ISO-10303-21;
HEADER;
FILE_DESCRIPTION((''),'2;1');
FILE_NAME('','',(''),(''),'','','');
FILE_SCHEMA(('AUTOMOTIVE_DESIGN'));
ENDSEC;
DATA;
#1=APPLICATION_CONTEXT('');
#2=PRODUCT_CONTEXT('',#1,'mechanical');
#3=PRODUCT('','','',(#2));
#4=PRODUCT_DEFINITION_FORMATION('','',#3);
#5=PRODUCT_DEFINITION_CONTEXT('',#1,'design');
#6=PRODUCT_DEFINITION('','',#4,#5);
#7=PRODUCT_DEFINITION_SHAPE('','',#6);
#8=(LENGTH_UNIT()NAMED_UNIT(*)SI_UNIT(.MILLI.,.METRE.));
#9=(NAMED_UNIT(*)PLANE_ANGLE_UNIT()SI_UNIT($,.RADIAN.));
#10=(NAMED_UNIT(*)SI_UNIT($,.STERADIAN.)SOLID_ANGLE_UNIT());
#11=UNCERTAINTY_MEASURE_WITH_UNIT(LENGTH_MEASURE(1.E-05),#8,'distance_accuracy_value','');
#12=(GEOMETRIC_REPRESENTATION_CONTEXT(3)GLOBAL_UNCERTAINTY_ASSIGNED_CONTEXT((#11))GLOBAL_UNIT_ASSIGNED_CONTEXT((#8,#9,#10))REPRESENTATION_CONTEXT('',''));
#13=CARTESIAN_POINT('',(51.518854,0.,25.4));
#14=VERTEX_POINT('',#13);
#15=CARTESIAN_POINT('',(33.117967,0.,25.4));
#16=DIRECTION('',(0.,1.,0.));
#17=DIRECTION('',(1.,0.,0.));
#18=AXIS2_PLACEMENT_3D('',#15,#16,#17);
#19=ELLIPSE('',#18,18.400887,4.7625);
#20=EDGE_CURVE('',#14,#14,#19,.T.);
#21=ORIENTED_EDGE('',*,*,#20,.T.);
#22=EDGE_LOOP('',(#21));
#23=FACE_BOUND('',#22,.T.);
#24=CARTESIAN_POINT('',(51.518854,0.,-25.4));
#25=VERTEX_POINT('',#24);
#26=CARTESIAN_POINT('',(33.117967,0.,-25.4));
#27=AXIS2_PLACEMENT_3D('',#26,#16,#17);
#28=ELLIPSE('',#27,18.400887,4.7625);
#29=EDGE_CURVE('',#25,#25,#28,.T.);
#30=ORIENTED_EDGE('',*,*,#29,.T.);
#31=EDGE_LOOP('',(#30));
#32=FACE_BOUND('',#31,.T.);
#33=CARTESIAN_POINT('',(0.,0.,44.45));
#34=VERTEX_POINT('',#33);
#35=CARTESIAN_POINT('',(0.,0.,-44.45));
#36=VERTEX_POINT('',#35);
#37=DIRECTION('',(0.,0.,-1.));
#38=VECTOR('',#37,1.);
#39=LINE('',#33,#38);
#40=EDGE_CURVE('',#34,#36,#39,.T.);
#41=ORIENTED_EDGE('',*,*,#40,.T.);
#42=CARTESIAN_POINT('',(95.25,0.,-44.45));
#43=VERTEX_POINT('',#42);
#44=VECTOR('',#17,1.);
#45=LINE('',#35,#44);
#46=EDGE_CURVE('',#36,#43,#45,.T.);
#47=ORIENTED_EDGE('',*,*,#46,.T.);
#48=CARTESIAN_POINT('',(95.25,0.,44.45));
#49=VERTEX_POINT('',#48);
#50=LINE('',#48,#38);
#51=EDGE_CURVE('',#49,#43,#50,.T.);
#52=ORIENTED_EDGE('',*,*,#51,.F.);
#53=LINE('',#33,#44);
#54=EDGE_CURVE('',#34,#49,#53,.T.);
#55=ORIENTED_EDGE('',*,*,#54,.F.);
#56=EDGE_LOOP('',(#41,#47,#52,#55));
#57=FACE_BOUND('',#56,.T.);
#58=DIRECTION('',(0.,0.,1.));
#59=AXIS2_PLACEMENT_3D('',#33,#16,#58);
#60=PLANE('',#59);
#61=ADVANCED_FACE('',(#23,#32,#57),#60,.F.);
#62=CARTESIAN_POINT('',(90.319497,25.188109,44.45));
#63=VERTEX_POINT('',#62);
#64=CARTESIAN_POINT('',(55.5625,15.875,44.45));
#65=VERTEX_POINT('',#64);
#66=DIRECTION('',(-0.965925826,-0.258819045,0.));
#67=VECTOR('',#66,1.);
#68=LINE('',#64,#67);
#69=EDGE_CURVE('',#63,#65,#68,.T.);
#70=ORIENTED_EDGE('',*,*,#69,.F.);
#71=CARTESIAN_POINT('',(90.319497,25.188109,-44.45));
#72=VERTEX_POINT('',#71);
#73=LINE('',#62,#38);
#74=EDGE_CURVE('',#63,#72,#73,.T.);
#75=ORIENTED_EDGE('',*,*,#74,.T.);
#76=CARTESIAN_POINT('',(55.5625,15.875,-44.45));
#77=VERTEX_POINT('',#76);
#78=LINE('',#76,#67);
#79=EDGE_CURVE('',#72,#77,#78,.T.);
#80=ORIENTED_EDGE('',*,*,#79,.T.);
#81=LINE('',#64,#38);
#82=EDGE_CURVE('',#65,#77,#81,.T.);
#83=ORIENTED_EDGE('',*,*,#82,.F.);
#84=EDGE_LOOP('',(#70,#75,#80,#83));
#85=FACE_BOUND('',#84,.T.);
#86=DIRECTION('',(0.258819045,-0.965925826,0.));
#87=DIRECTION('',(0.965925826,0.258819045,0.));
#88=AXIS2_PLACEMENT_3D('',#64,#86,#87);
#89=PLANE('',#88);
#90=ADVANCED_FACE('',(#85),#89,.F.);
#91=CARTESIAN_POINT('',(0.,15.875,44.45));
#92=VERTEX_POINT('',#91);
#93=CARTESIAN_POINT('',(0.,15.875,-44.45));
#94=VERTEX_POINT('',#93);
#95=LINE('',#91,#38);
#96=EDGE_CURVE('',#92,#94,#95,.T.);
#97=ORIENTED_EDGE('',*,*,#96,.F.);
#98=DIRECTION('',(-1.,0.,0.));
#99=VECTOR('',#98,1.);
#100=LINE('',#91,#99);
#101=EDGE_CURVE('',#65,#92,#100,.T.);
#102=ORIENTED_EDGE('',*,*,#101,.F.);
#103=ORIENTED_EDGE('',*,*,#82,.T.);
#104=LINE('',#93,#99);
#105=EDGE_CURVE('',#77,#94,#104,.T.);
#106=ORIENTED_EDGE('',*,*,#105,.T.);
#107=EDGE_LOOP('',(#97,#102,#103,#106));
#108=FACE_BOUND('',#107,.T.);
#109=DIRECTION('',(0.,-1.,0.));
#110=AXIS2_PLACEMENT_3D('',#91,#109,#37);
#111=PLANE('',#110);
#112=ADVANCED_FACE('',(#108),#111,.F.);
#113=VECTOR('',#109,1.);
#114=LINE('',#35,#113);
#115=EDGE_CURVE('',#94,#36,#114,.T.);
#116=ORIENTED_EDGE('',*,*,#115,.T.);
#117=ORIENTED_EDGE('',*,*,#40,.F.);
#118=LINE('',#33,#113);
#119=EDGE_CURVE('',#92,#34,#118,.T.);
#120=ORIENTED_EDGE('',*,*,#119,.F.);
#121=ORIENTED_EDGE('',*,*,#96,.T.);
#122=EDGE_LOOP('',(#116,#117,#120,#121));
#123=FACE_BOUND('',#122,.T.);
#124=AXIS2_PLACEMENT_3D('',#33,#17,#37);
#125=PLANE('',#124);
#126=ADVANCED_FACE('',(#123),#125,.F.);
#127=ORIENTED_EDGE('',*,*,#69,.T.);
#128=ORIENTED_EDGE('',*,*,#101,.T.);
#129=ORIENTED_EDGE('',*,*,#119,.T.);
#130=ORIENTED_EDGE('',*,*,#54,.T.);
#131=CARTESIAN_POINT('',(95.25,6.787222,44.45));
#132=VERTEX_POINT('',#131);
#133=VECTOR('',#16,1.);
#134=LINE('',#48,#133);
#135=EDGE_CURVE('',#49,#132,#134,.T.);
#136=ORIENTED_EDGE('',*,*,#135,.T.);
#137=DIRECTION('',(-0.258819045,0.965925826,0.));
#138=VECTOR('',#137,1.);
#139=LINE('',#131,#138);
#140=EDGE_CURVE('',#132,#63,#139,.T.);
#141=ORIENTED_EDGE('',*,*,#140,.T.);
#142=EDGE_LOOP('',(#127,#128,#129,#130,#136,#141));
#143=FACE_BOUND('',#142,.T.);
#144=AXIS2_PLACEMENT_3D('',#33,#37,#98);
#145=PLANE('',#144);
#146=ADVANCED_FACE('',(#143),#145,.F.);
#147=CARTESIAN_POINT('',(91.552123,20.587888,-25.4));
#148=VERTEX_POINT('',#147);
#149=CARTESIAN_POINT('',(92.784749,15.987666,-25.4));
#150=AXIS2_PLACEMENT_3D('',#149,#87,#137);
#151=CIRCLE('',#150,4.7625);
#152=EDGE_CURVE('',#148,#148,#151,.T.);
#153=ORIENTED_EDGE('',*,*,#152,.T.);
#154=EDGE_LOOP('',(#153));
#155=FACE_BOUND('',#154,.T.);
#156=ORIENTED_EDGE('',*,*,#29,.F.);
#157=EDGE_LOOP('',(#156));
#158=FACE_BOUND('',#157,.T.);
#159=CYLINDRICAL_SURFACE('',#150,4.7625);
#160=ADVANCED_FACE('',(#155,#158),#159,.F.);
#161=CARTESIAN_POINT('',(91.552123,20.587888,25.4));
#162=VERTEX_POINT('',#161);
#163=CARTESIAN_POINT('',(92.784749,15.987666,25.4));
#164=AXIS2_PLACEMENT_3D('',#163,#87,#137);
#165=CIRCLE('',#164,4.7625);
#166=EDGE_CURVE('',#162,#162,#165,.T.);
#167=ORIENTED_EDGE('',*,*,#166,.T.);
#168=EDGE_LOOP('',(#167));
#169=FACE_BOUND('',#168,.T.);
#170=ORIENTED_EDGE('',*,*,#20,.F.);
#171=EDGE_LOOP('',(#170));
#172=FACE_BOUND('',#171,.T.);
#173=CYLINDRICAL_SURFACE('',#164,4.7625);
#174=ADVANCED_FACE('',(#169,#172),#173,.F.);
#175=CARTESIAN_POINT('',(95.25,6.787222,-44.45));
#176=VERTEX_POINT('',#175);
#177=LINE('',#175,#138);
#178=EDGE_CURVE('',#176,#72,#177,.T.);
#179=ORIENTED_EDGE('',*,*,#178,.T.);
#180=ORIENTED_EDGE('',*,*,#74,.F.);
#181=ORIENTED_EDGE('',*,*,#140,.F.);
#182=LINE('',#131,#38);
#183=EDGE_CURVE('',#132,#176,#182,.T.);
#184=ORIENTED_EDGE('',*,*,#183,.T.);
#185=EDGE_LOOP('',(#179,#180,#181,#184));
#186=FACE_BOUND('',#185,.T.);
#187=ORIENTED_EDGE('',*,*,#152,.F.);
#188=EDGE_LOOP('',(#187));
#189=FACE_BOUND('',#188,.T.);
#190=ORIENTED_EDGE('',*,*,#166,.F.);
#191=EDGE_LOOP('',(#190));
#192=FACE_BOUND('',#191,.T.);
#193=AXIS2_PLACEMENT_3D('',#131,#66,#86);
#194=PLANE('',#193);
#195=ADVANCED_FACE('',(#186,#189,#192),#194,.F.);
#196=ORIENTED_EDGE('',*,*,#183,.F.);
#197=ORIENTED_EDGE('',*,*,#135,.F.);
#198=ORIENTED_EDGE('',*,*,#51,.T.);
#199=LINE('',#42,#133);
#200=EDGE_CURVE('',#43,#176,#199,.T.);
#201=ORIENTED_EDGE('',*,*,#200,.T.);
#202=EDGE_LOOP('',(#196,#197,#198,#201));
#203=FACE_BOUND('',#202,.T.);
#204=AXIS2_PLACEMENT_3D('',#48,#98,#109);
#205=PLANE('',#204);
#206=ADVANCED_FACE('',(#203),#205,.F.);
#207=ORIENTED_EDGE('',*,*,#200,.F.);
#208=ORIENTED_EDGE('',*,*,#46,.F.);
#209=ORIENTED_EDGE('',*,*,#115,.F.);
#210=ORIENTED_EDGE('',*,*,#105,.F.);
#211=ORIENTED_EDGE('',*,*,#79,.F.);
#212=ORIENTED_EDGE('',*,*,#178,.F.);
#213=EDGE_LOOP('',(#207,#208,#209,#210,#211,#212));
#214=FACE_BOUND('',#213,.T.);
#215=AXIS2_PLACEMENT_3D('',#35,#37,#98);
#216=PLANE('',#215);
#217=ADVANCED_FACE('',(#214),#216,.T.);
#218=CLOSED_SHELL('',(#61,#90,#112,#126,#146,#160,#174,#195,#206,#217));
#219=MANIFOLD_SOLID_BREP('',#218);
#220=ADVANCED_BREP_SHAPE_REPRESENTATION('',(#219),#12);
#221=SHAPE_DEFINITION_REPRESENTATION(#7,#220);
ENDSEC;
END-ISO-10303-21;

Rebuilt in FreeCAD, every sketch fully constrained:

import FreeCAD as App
import Part
import Sketcher
Q = App.Units.Quantity

doc = App.newDocument("Part")
body = doc.addObject("PartDesign::Body", "Body")

# Sketch on XY plane
sketch1 = body.newObject("Sketcher::SketchObject", "Sketch")
sketch1.AttachmentSupport = (doc.getObject("XY_Plane"), [""])
sketch1.MapMode = "FlatFace"
sketch1.addGeometry([
    Part.LineSegment(App.Vector(95, 0, 0), App.Vector(95, 7, 0)),  # 0
    Part.LineSegment(App.Vector(95, 7, 0), App.Vector(90, 25, 0)),  # 1
    Part.LineSegment(App.Vector(90, 25, 0), App.Vector(56, 16, 0)),  # 2
    Part.LineSegment(App.Vector(56, 16, 0), App.Vector(0, 16, 0)),  # 3
    Part.LineSegment(App.Vector(0, 16, 0), App.Vector(0, 0, 0)),  # 4
    Part.LineSegment(App.Vector(0, 0, 0), App.Vector(95, 0, 0)),  # 5
], False)
sketch1.addConstraint([
    Sketcher.Constraint("Coincident", 0, 2, 1, 1),
    Sketcher.Constraint("Coincident", 1, 2, 2, 1),
    Sketcher.Constraint("Coincident", 2, 2, 3, 1),
    Sketcher.Constraint("Coincident", 3, 2, 4, 1),
    Sketcher.Constraint("Coincident", 4, 2, 5, 1),
    Sketcher.Constraint("Coincident", 5, 2, 0, 1),
    Sketcher.Constraint("Vertical", 0),
    Sketcher.Constraint("Horizontal", 3),
    Sketcher.Constraint("Vertical", 4),
    Sketcher.Constraint("Horizontal", 5),
    Sketcher.Constraint("Coincident", 4, 2, -1, 1),
    Sketcher.Constraint("Perpendicular", 1, 2),
    Sketcher.Constraint("Angle", 1, Q("105 deg")),
    Sketcher.Constraint("DistanceX", 5, 1, 5, 2, Q("3.75 in")),
    Sketcher.Constraint("Distance", 1, Q("0.75 in")),
    Sketcher.Constraint("DistanceX", 3, 2, 3, 1, Q("2.1875 in")),
    Sketcher.Constraint("DistanceY", 4, 2, 4, 1, Q("0.625 in")),
])
pad1 = body.newObject("PartDesign::Pad", "Pad")
pad1.Profile = sketch1
pad1.Length = Q("3.5 in")
pad1.Midplane = True

# Sketch on an angled plane
sketch2 = body.newObject("Sketcher::SketchObject", "Sketch001")
sketch2.Placement = App.Placement(App.Vector(90.566265, 24.267158, 0), App.Rotation(App.Vector(0, 0, -1), App.Vector(-0.258819045, 0.965925826, 0), App.Vector(0.965925826, 0.258819045, 0), "ZXY"))
sketch2.addGeometry([
    Part.Circle(App.Vector(-25.4, -8.6, 0), App.Vector(0, 0, 1), 4.8),
    Part.Circle(App.Vector(25.4, -8.6, 0), App.Vector(0, 0, 1), 4.8),
], False)
sketch2.addConstraint([
    Sketcher.Constraint("Equal", 0, 1),
    Sketcher.Constraint("Symmetric", 0, 3, 1, 3, -2),
    Sketcher.Constraint("Diameter", 0, Q("0.375 in")),
    Sketcher.Constraint("DistanceX", 0, 3, -1, 1, Q("1 in")),
    Sketcher.Constraint("DistanceY", 0, 3, -1, 1, 8.571561),
])
doc.recompute()
hole = body.newObject("PartDesign::Hole", "Hole")
hole.Profile = sketch2
hole.ThreadType = "None"
hole.Diameter = Q("0.375 in")
hole.DepthType = "ThroughAll"

doc.recompute()
